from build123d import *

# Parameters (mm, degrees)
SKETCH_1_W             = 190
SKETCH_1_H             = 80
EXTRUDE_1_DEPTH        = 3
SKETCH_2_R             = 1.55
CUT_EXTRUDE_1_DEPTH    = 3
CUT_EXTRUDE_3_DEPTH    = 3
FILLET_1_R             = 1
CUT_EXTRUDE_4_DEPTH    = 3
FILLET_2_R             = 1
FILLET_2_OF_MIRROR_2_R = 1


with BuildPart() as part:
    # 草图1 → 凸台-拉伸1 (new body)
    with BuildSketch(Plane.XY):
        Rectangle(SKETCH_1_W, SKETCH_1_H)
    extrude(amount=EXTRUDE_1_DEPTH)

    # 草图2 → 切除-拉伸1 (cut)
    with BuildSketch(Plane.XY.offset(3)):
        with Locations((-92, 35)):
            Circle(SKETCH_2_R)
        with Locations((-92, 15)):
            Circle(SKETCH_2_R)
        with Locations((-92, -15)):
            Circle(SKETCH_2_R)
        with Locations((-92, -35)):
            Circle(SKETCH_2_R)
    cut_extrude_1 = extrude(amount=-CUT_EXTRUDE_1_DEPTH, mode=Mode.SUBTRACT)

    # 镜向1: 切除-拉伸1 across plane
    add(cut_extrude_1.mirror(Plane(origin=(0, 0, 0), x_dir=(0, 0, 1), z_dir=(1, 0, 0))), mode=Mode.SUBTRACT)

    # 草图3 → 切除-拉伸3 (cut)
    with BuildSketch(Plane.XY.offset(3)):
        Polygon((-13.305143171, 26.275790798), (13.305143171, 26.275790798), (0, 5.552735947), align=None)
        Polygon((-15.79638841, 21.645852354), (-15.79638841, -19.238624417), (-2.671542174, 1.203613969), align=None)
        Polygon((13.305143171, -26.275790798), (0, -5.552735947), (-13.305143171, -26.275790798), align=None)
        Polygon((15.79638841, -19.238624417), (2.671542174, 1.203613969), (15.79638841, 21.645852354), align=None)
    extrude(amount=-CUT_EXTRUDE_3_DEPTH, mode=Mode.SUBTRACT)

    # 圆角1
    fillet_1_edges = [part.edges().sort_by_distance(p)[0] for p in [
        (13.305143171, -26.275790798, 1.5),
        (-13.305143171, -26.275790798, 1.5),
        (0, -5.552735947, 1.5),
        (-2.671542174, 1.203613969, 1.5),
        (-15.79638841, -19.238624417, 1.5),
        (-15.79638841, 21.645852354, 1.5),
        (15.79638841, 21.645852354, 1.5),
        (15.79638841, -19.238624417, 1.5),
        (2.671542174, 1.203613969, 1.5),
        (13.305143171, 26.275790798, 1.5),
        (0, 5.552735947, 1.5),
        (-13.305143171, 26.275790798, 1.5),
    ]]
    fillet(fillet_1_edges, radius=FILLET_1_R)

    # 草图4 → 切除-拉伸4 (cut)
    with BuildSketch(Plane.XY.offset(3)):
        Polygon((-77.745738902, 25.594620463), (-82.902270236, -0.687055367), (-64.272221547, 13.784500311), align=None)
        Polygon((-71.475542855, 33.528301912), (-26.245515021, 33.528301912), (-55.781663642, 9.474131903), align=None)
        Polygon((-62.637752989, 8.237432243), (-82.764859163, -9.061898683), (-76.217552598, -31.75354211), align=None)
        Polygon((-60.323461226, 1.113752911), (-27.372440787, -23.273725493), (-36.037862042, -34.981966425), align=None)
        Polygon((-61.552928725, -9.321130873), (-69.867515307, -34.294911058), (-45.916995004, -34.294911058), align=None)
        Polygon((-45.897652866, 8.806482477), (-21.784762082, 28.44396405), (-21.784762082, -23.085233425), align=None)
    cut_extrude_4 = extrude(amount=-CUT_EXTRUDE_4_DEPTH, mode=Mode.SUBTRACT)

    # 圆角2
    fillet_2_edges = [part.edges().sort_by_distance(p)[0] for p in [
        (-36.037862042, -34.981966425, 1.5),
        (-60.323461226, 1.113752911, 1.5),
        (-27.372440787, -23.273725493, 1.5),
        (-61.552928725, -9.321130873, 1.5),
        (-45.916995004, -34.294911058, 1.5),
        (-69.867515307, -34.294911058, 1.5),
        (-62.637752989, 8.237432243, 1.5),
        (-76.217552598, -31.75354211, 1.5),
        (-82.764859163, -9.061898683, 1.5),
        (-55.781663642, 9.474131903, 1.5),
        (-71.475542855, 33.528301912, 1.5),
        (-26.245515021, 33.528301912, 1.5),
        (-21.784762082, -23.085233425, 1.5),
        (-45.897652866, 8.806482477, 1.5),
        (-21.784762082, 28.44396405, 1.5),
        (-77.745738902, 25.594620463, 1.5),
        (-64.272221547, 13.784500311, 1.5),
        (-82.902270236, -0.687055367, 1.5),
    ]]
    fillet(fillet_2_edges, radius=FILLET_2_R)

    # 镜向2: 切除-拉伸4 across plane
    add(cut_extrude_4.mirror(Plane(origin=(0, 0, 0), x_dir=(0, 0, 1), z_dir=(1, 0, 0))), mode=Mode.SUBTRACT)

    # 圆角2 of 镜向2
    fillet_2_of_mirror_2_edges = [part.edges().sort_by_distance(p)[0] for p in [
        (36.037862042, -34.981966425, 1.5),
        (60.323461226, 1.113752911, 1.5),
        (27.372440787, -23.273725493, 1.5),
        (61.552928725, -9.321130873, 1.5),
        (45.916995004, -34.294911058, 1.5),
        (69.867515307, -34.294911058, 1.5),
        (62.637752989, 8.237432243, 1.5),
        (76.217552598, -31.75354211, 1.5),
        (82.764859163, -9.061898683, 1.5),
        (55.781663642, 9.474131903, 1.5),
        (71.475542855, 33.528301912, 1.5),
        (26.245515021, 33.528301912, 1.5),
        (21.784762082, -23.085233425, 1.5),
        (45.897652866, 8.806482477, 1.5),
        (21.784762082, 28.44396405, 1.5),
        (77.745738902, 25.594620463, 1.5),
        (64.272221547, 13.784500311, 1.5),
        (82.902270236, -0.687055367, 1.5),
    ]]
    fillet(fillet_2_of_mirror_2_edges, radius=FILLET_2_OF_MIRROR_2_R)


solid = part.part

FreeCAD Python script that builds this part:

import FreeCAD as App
import Part
import Sketcher
Q = App.Units.Quantity


def edges_at(feature, points):
    """Names of the edges that pass closest to the given points."""
    edges = feature.Shape.Edges
    near = lambda p: min(range(len(edges)), key=lambda i: edges[i].distToShape(Part.Vertex(*p))[0])
    return sorted({f"Edge{near(p) + 1}" for p in points})


def add_polygon(sketch, points):
    """Adds a closed chain of lines whose ends are joined by coincident constraints."""
    first, n = sketch.GeometryCount, len(points)
    for a, b in zip(points, points[1:] + points[:1]):
        sketch.addGeometry(Part.LineSegment(App.Vector(*a, 0), App.Vector(*b, 0)), False)
    for i in range(n):
        sketch.addConstraint(Sketcher.Constraint("Coincident", first + i, 2, first + (i + 1) % n, 1))

doc = App.newDocument("Part")
params = doc.addObject("Spreadsheet::Sheet", "Params")
for row, (alias, value) in enumerate([
    ("sketch1_width", "190 mm"),
    ("sketch1_height", "80 mm"),
    ("pad1_length", "3 mm"),
    ("sketch2_diameter", "3.1 mm"),
    ("pocket1_length", "3 mm"),
    ("pocket2_length", "3 mm"),
    ("fillet_radius", "1 mm"),
    ("pocket3_length", "3 mm"),
    ("fillet2_radius", "1 mm"),
    ("fillet3_radius", "1 mm"),
], start=1):
    params.set(f"A{row}", alias)
    params.set(f"B{row}", "=" + value)
    params.setAlias(f"B{row}", alias)

body = doc.addObject("PartDesign::Body", "Body")

# Sketch on XY plane
sketch1 = doc.addObject("Sketcher::SketchObject", "Sketch")
body.addObject(sketch1)
sketch1.AttachmentSupport = (doc.XY_Plane, [""])
sketch1.MapMode = "FlatFace"
add_polygon(sketch1, [(-95, 40), (-95, -40), (95, -40), (95, 40)])  # lines 0-3
sketch1.addConstraint([
    Sketcher.Constraint("Vertical", 0),
    Sketcher.Constraint("Horizontal", 1),
    Sketcher.Constraint("Vertical", 2),
    Sketcher.Constraint("Horizontal", 3),
    Sketcher.Constraint("Symmetric", 0, 2, 2, 2, -1, 1),
    Sketcher.Constraint("DistanceX", 1, 1, 1, 2, Q("190 mm")),
    Sketcher.Constraint("DistanceY", 0, 2, 0, 1, Q("80 mm")),
])
sketch1.setExpression("Constraints[9]", "Params.sketch1_width")
sketch1.setExpression("Constraints[10]", "Params.sketch1_height")
pad1 = doc.addObject("PartDesign::Pad", "Pad")
body.addObject(pad1)
pad1.Profile = sketch1
pad1.setExpression("Length", "Params.pad1_length")

# Sketch on XY plane
sketch2 = doc.addObject("Sketcher::SketchObject", "Sketch001")
body.addObject(sketch2)
sketch2.AttachmentSupport = (doc.XY_Plane, [""])
sketch2.MapMode = "FlatFace"
sketch2.AttachmentOffset = App.Placement(App.Vector(0, 0, 3), App.Rotation())
sketch2.addGeometry([
    Part.Circle(App.Vector(-92, 35, 0), App.Vector(0, 0, 1), 1.6),
    Part.Circle(App.Vector(-92, 15, 0), App.Vector(0, 0, 1), 1.6),
    Part.Circle(App.Vector(-92, -15, 0), App.Vector(0, 0, 1), 1.6),
    Part.Circle(App.Vector(-92, -35, 0), App.Vector(0, 0, 1), 1.6),
], False)
sketch2.addConstraint([
    Sketcher.Constraint("Equal", 0, 1),
    Sketcher.Constraint("Equal", 1, 2),
    Sketcher.Constraint("Equal", 2, 3),
    Sketcher.Constraint("Symmetric", 1, 3, 2, 3, -1),
    Sketcher.Constraint("Symmetric", 0, 3, 3, 3, -1),
    Sketcher.Constraint("Vertical", 0, 3, 1, 3),
    Sketcher.Constraint("Diameter", 0, Q("3.1 mm")),
    Sketcher.Constraint("DistanceX", 0, 3, -1, 1, Q("92 mm")),
    Sketcher.Constraint("DistanceY", -1, 1, 0, 3, Q("35 mm")),
    Sketcher.Constraint("DistanceY", -1, 1, 1, 3, Q("15 mm")),
])
sketch2.setExpression("Constraints[6]", "Params.sketch2_diameter")
pocket1 = doc.addObject("PartDesign::Pocket", "Pocket")
body.addObject(pocket1)
pocket1.Profile = sketch2
pocket1.setExpression("Length", "Params.pocket1_length")
doc.recompute()

mirrored = doc.addObject("PartDesign::Mirrored", "Mirrored")
body.addObject(mirrored)
mirrored.Originals = [pocket1]
mirrored.MirrorPlane = (doc.YZ_Plane, [""])
body.Tip = mirrored

# Sketch on XY plane
sketch3 = doc.addObject("Sketcher::SketchObject", "Sketch002")
body.addObject(sketch3)
sketch3.AttachmentSupport = (doc.XY_Plane, [""])
sketch3.MapMode = "FlatFace"
sketch3.AttachmentOffset = App.Placement(App.Vector(0, 0, 3), App.Rotation())
add_polygon(sketch3, [(13, 26), (-13, 26), (0, 6)])  # lines 0-2
add_polygon(sketch3, [(-16, 22), (-16, -19), (-3, 1)])  # lines 3-5
add_polygon(sketch3, [(13, -26), (0, -6), (-13, -26)])  # lines 6-8
add_polygon(sketch3, [(3, 1), (16, -19), (16, 22)])  # lines 9-11
sketch3.addConstraint([
    Sketcher.Constraint("Horizontal", 0),
    Sketcher.Constraint("Vertical", 3),
    Sketcher.Constraint("Horizontal", 8),
    Sketcher.Constraint("Vertical", 10),
    Sketcher.Constraint("Symmetric", 1, 2, 6, 2, -1, 1),
    Sketcher.Constraint("Symmetric", 2, 2, 7, 2, -1, 1),
    Sketcher.Constraint("Symmetric", 3, 2, 9, 2, -2),
    Sketcher.Constraint("Symmetric", 4, 2, 11, 2, -2),
    Sketcher.Constraint("PointOnObject", 1, 2, -2),
    Sketcher.Constraint("Parallel", 2, 4),
    Sketcher.Constraint("Parallel", 1, 5),
    Sketcher.Constraint("Parallel", 5, 6),
    Sketcher.Constraint("Parallel", 6, 9),
    Sketcher.Constraint("Parallel", 7, 11),
    Sketcher.Constraint("DistanceX", 0, 2, 4, 2, Q("10.633601 mm")),
    Sketcher.Constraint("Distance", 1, Q("24.626649 mm")),
    Sketcher.Constraint("DistanceX", 0, 2, 0, 1, Q("26.610286 mm")),
    Sketcher.Constraint("DistanceY", 3, 2, 3, 1, Q("40.884477 mm")),
    Sketcher.Constraint("DistanceY", -1, 1, 0, 2, Q("26.275791 mm")),
    Sketcher.Constraint("DistanceY", 3, 2, 1, 2, Q("24.79136 mm")),
])
pocket2 = doc.addObject("PartDesign::Pocket", "Pocket001")
body.addObject(pocket2)
pocket2.Profile = sketch3
pocket2.setExpression("Length", "Params.pocket2_length")
doc.recompute()

fillet = doc.addObject("PartDesign::Fillet", "Fillet")
body.addObject(fillet)
fillet.Base = (pocket2, edges_at(pocket2, [
    (13.305, -26.276, 1.5),
    (-13.305, -26.276, 1.5),
    (0, -5.553, 1.5),
    (-2.672, 1.204, 1.5),
    (-15.796, -19.239, 1.5),
    (-15.796, 21.646, 1.5),
    (15.796, 21.646, 1.5),
    (15.796, -19.239, 1.5),
    (2.672, 1.204, 1.5),
    (13.305, 26.276, 1.5),
    (0, 5.553, 1.5),
    (-13.305, 26.276, 1.5),
]))
fillet.setExpression("Radius", "Params.fillet_radius")

# Sketch on XY plane
sketch4 = doc.addObject("Sketcher::SketchObject", "Sketch003")
body.addObject(sketch4)
sketch4.AttachmentSupport = (doc.XY_Plane, [""])
sketch4.MapMode = "FlatFace"
sketch4.AttachmentOffset = App.Placement(App.Vector(0, 0, 3), App.Rotation())
add_polygon(sketch4, [(-77.745739, 25.59462), (-82.90227, -0.687055), (-64.272222, 13.7845)])  # lines 0-2
add_polygon(sketch4, [(-26.245515, 33.528302), (-71.475543, 33.528302), (-55.781664, 9.474132)])  # lines 3-5
add_polygon(sketch4, [(-62.637753, 8.237432), (-82.764859, -9.061899), (-76.217553, -31.753542)])  # lines 6-8
add_polygon(sketch4, [(-27.372441, -23.273725), (-60.323461, 1.113753), (-36.037862, -34.981966)])  # lines 9-11
add_polygon(sketch4, [(-61.552929, -9.321131), (-69.867515, -34.294911), (-45.916995, -34.294911)])  # lines 12-14
add_polygon(sketch4, [(-21.784762, 28.443964), (-45.897653, 8.806482), (-21.784762, -23.085233)])  # lines 15-17
sketch4.addConstraint([
    Sketcher.Constraint("Horizontal", 3),
    Sketcher.Constraint("Horizontal", 13),
    Sketcher.Constraint("Vertical", 17),
    Sketcher.Constraint("DistanceX", 13, 1, 13, 2, Q("23.95052 mm")),
    Sketcher.Constraint("DistanceY", -1, 1, 1, 2, Q("13.7845 mm")),
    Sketcher.Constraint("DistanceY", -1, 1, 3, 2, Q("33.528302 mm")),
    Sketcher.Constraint("DistanceY", 6, 2, -1, 1, Q("9.061899 mm")),
    Sketcher.Constraint("DistanceY", 8, 2, 4, 2, Q("1.2367 mm")),
    Sketcher.Constraint("DistanceX", 9, 2, 10, 2, Q("24.285599 mm")),
    Sketcher.Constraint("DistanceX", 4, 2, 10, 2, Q("19.743802 mm")),
    Sketcher.Constraint("DistanceY", 10, 2, 4, 2, Q("44.456098 mm")),
    Sketcher.Constraint("DistanceX", 8, 2, 15, 2, Q("16.7401 mm")),
    Sketcher.Constraint("DistanceX", 10, 2, 16, 2, Q("14.2531 mm")),
    Sketcher.Constraint("Distance", 0, Q("26.782761 mm")),
    Sketcher.Constraint("Distance", 1, Q("23.590351 mm")),
    Sketcher.Constraint("Distance", 2, Q("17.916881 mm")),
    Sketcher.Constraint("Distance", 4, Q("28.721089 mm")),
    Sketcher.Constraint("Distance", 6, Q("26.539918 mm")),
    Sketcher.Constraint("Distance", 9, Q("40.994132 mm")),
    Sketcher.Constraint("Distance", 10, Q("43.505072 mm")),
    Sketcher.Constraint("Distance", 11, Q("14.56614 mm")),
    Sketcher.Constraint("Distance", 14, Q("29.464761 mm")),
    Sketcher.Constraint("Distance", 16, Q("39.981409 mm")),
    Sketcher.Constraint("DistanceX", 3, 2, 3, 1, Q("45.230028 mm")),
    Sketcher.Constraint("DistanceY", 17, 1, 17, 2, Q("51.529197 mm")),
    Sketcher.Constraint("DistanceX", 0, 2, -1, 1, Q("82.90227 mm")),
    Sketcher.Constraint("DistanceX", 1, 2, -1, 1, Q("64.272222 mm")),
    Sketcher.Constraint("DistanceY", -1, 1, 4, 2, Q("9.474132 mm")),
    Sketcher.Constraint("DistanceX", 6, 2, -1, 1, Q("82.764859 mm")),
    Sketcher.Constraint("DistanceX", 9, 2, -1, 1, Q("60.323461 mm")),
    Sketcher.Constraint("DistanceY", 12, 2, -1, 1, Q("34.294911 mm")),
    Sketcher.Constraint("DistanceX", 14, 2, -1, 1, Q("61.552929 mm")),
    Sketcher.Constraint("DistanceY", 14, 2, -1, 1, Q("9.321131 mm")),
    Sketcher.Constraint("DistanceX", 7, 2, 4, 2, Q("20.435889 mm")),
    Sketcher.Constraint("DistanceY", 12, 2, 7, 2, Q("2.541369 mm")),
    Sketcher.Constraint("DistanceY", 15, 2, 4, 2, Q("0.667649 mm")),
])
pocket3 = doc.addObject("PartDesign::Pocket", "Pocket002")
body.addObject(pocket3)
pocket3.Profile = sketch4
pocket3.setExpression("Length", "Params.pocket3_length")
doc.recompute()

fillet2 = doc.addObject("PartDesign::Fillet", "Fillet001")
body.addObject(fillet2)
fillet2.Base = (pocket3, edges_at(pocket3, [
    (-36.038, -34.982, 1.5),
    (-60.323, 1.114, 1.5),
    (-27.372, -23.274, 1.5),
    (-61.553, -9.321, 1.5),
    (-45.917, -34.295, 1.5),
    (-69.868, -34.295, 1.5),
    (-62.638, 8.237, 1.5),
    (-76.218, -31.754, 1.5),
    (-82.765, -9.062, 1.5),
    (-55.782, 9.474, 1.5),
    (-71.476, 33.528, 1.5),
    (-26.246, 33.528, 1.5),
    (-21.785, -23.085, 1.5),
    (-45.898, 8.806, 1.5),
    (-21.785, 28.444, 1.5),
    (-77.746, 25.595, 1.5),
    (-64.272, 13.785, 1.5),
    (-82.902, -0.687, 1.5),
]))
fillet2.setExpression("Radius", "Params.fillet2_radius")
doc.recompute()

mirrored2 = doc.addObject("PartDesign::Mirrored", "Mirrored001")
body.addObject(mirrored2)
mirrored2.Originals = [pocket3]
mirrored2.MirrorPlane = (doc.YZ_Plane, [""])
body.Tip = mirrored2
doc.recompute()

fillet3 = doc.addObject("PartDesign::Fillet", "Fillet002")
body.addObject(fillet3)
fillet3.Base = (mirrored2, edges_at(mirrored2, [
    (36.038, -34.982, 1.5),
    (60.323, 1.114, 1.5),
    (27.372, -23.274, 1.5),
    (61.553, -9.321, 1.5),
    (45.917, -34.295, 1.5),
    (69.868, -34.295, 1.5),
    (62.638, 8.237, 1.5),
    (76.218, -31.754, 1.5),
    (82.765, -9.062, 1.5),
    (55.782, 9.474, 1.5),
    (71.476, 33.528, 1.5),
    (26.246, 33.528, 1.5),
    (21.785, -23.085, 1.5),
    (45.898, 8.806, 1.5),
    (21.785, 28.444, 1.5),
    (77.746, 25.595, 1.5),
    (64.272, 13.785, 1.5),
    (82.902, -0.687, 1.5),
]))
fillet3.setExpression("Radius", "Params.fillet3_radius")

doc.recompute()
